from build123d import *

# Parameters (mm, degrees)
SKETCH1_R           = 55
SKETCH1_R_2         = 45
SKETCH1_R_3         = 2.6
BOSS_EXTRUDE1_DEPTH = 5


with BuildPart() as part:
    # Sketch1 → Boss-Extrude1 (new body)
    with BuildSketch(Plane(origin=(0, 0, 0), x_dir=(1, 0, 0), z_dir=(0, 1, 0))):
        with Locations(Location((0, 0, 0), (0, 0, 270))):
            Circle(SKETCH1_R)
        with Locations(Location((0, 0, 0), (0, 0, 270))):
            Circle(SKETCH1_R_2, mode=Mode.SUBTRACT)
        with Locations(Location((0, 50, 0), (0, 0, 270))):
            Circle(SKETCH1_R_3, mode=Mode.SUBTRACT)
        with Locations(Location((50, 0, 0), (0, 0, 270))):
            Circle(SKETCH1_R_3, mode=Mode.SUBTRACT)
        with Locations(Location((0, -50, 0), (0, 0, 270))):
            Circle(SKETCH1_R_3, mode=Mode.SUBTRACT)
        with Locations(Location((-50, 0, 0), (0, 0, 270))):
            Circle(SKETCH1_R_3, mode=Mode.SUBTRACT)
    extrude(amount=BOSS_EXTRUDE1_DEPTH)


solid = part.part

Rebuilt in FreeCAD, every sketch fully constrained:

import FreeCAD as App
import Part
import Sketcher

V = App.Vector

doc = App.newDocument("Part")
body = doc.addObject("PartDesign::Body", "Body")

# Sketch on XZ plane
sketch1 = body.newObject("Sketcher::SketchObject", "Sketch")
sketch1.AttachmentSupport = (doc.getObject("XZ_Plane"), [""])
sketch1.MapMode = "FlatFace"
sketch1.addGeometry([
    Part.Circle(V(0, 0, 0), V(0, 0, 1), 55),  # 0
    Part.Circle(V(0, -50, 0), V(0, 0, 1), 2.6),  # 1
    Part.Circle(V(-50, 0, 0), V(0, 0, 1), 2.6),  # 2
    Part.Circle(V(50, 0, 0), V(0, 0, 1), 2.6),  # 3
    Part.Circle(V(0, 0, 0), V(0, 0, 1), 45),  # 4
    Part.Circle(V(0, 50, 0), V(0, 0, 1), 2.6),  # 5
], False)
sketch1.addConstraint([
    Sketcher.Constraint("Coincident", 0, 3, -1, 1),
    Sketcher.Constraint("Coincident", 4, 3, -1, 1),
    Sketcher.Constraint("Equal", 1, 2),
    Sketcher.Constraint("Equal", 2, 3),
    Sketcher.Constraint("Equal", 3, 5),
    Sketcher.Constraint("Symmetric", 2, 3, 3, 3, -1, 1),
    Sketcher.Constraint("Symmetric", 1, 3, 5, 3, -1, 1),
    Sketcher.Constraint("PointOnObject", 1, 3, -2),
    Sketcher.Constraint("PointOnObject", 2, 3, -1),
    Sketcher.Constraint("Diameter", 0, 110.0),
    Sketcher.Constraint("Diameter", 4, 90.0),
    Sketcher.Constraint("Diameter", 1, 5.2),
    Sketcher.Constraint("DistanceY", 1, 3, -1, 1, 50.0),
    Sketcher.Constraint("DistanceX", 2, 3, -1, 1, 50.0),
])
pad1 = body.newObject("PartDesign::Pad", "Pad")
pad1.Profile = sketch1
pad1.Length = 5
pad1.Reversed = True

doc.recompute()
